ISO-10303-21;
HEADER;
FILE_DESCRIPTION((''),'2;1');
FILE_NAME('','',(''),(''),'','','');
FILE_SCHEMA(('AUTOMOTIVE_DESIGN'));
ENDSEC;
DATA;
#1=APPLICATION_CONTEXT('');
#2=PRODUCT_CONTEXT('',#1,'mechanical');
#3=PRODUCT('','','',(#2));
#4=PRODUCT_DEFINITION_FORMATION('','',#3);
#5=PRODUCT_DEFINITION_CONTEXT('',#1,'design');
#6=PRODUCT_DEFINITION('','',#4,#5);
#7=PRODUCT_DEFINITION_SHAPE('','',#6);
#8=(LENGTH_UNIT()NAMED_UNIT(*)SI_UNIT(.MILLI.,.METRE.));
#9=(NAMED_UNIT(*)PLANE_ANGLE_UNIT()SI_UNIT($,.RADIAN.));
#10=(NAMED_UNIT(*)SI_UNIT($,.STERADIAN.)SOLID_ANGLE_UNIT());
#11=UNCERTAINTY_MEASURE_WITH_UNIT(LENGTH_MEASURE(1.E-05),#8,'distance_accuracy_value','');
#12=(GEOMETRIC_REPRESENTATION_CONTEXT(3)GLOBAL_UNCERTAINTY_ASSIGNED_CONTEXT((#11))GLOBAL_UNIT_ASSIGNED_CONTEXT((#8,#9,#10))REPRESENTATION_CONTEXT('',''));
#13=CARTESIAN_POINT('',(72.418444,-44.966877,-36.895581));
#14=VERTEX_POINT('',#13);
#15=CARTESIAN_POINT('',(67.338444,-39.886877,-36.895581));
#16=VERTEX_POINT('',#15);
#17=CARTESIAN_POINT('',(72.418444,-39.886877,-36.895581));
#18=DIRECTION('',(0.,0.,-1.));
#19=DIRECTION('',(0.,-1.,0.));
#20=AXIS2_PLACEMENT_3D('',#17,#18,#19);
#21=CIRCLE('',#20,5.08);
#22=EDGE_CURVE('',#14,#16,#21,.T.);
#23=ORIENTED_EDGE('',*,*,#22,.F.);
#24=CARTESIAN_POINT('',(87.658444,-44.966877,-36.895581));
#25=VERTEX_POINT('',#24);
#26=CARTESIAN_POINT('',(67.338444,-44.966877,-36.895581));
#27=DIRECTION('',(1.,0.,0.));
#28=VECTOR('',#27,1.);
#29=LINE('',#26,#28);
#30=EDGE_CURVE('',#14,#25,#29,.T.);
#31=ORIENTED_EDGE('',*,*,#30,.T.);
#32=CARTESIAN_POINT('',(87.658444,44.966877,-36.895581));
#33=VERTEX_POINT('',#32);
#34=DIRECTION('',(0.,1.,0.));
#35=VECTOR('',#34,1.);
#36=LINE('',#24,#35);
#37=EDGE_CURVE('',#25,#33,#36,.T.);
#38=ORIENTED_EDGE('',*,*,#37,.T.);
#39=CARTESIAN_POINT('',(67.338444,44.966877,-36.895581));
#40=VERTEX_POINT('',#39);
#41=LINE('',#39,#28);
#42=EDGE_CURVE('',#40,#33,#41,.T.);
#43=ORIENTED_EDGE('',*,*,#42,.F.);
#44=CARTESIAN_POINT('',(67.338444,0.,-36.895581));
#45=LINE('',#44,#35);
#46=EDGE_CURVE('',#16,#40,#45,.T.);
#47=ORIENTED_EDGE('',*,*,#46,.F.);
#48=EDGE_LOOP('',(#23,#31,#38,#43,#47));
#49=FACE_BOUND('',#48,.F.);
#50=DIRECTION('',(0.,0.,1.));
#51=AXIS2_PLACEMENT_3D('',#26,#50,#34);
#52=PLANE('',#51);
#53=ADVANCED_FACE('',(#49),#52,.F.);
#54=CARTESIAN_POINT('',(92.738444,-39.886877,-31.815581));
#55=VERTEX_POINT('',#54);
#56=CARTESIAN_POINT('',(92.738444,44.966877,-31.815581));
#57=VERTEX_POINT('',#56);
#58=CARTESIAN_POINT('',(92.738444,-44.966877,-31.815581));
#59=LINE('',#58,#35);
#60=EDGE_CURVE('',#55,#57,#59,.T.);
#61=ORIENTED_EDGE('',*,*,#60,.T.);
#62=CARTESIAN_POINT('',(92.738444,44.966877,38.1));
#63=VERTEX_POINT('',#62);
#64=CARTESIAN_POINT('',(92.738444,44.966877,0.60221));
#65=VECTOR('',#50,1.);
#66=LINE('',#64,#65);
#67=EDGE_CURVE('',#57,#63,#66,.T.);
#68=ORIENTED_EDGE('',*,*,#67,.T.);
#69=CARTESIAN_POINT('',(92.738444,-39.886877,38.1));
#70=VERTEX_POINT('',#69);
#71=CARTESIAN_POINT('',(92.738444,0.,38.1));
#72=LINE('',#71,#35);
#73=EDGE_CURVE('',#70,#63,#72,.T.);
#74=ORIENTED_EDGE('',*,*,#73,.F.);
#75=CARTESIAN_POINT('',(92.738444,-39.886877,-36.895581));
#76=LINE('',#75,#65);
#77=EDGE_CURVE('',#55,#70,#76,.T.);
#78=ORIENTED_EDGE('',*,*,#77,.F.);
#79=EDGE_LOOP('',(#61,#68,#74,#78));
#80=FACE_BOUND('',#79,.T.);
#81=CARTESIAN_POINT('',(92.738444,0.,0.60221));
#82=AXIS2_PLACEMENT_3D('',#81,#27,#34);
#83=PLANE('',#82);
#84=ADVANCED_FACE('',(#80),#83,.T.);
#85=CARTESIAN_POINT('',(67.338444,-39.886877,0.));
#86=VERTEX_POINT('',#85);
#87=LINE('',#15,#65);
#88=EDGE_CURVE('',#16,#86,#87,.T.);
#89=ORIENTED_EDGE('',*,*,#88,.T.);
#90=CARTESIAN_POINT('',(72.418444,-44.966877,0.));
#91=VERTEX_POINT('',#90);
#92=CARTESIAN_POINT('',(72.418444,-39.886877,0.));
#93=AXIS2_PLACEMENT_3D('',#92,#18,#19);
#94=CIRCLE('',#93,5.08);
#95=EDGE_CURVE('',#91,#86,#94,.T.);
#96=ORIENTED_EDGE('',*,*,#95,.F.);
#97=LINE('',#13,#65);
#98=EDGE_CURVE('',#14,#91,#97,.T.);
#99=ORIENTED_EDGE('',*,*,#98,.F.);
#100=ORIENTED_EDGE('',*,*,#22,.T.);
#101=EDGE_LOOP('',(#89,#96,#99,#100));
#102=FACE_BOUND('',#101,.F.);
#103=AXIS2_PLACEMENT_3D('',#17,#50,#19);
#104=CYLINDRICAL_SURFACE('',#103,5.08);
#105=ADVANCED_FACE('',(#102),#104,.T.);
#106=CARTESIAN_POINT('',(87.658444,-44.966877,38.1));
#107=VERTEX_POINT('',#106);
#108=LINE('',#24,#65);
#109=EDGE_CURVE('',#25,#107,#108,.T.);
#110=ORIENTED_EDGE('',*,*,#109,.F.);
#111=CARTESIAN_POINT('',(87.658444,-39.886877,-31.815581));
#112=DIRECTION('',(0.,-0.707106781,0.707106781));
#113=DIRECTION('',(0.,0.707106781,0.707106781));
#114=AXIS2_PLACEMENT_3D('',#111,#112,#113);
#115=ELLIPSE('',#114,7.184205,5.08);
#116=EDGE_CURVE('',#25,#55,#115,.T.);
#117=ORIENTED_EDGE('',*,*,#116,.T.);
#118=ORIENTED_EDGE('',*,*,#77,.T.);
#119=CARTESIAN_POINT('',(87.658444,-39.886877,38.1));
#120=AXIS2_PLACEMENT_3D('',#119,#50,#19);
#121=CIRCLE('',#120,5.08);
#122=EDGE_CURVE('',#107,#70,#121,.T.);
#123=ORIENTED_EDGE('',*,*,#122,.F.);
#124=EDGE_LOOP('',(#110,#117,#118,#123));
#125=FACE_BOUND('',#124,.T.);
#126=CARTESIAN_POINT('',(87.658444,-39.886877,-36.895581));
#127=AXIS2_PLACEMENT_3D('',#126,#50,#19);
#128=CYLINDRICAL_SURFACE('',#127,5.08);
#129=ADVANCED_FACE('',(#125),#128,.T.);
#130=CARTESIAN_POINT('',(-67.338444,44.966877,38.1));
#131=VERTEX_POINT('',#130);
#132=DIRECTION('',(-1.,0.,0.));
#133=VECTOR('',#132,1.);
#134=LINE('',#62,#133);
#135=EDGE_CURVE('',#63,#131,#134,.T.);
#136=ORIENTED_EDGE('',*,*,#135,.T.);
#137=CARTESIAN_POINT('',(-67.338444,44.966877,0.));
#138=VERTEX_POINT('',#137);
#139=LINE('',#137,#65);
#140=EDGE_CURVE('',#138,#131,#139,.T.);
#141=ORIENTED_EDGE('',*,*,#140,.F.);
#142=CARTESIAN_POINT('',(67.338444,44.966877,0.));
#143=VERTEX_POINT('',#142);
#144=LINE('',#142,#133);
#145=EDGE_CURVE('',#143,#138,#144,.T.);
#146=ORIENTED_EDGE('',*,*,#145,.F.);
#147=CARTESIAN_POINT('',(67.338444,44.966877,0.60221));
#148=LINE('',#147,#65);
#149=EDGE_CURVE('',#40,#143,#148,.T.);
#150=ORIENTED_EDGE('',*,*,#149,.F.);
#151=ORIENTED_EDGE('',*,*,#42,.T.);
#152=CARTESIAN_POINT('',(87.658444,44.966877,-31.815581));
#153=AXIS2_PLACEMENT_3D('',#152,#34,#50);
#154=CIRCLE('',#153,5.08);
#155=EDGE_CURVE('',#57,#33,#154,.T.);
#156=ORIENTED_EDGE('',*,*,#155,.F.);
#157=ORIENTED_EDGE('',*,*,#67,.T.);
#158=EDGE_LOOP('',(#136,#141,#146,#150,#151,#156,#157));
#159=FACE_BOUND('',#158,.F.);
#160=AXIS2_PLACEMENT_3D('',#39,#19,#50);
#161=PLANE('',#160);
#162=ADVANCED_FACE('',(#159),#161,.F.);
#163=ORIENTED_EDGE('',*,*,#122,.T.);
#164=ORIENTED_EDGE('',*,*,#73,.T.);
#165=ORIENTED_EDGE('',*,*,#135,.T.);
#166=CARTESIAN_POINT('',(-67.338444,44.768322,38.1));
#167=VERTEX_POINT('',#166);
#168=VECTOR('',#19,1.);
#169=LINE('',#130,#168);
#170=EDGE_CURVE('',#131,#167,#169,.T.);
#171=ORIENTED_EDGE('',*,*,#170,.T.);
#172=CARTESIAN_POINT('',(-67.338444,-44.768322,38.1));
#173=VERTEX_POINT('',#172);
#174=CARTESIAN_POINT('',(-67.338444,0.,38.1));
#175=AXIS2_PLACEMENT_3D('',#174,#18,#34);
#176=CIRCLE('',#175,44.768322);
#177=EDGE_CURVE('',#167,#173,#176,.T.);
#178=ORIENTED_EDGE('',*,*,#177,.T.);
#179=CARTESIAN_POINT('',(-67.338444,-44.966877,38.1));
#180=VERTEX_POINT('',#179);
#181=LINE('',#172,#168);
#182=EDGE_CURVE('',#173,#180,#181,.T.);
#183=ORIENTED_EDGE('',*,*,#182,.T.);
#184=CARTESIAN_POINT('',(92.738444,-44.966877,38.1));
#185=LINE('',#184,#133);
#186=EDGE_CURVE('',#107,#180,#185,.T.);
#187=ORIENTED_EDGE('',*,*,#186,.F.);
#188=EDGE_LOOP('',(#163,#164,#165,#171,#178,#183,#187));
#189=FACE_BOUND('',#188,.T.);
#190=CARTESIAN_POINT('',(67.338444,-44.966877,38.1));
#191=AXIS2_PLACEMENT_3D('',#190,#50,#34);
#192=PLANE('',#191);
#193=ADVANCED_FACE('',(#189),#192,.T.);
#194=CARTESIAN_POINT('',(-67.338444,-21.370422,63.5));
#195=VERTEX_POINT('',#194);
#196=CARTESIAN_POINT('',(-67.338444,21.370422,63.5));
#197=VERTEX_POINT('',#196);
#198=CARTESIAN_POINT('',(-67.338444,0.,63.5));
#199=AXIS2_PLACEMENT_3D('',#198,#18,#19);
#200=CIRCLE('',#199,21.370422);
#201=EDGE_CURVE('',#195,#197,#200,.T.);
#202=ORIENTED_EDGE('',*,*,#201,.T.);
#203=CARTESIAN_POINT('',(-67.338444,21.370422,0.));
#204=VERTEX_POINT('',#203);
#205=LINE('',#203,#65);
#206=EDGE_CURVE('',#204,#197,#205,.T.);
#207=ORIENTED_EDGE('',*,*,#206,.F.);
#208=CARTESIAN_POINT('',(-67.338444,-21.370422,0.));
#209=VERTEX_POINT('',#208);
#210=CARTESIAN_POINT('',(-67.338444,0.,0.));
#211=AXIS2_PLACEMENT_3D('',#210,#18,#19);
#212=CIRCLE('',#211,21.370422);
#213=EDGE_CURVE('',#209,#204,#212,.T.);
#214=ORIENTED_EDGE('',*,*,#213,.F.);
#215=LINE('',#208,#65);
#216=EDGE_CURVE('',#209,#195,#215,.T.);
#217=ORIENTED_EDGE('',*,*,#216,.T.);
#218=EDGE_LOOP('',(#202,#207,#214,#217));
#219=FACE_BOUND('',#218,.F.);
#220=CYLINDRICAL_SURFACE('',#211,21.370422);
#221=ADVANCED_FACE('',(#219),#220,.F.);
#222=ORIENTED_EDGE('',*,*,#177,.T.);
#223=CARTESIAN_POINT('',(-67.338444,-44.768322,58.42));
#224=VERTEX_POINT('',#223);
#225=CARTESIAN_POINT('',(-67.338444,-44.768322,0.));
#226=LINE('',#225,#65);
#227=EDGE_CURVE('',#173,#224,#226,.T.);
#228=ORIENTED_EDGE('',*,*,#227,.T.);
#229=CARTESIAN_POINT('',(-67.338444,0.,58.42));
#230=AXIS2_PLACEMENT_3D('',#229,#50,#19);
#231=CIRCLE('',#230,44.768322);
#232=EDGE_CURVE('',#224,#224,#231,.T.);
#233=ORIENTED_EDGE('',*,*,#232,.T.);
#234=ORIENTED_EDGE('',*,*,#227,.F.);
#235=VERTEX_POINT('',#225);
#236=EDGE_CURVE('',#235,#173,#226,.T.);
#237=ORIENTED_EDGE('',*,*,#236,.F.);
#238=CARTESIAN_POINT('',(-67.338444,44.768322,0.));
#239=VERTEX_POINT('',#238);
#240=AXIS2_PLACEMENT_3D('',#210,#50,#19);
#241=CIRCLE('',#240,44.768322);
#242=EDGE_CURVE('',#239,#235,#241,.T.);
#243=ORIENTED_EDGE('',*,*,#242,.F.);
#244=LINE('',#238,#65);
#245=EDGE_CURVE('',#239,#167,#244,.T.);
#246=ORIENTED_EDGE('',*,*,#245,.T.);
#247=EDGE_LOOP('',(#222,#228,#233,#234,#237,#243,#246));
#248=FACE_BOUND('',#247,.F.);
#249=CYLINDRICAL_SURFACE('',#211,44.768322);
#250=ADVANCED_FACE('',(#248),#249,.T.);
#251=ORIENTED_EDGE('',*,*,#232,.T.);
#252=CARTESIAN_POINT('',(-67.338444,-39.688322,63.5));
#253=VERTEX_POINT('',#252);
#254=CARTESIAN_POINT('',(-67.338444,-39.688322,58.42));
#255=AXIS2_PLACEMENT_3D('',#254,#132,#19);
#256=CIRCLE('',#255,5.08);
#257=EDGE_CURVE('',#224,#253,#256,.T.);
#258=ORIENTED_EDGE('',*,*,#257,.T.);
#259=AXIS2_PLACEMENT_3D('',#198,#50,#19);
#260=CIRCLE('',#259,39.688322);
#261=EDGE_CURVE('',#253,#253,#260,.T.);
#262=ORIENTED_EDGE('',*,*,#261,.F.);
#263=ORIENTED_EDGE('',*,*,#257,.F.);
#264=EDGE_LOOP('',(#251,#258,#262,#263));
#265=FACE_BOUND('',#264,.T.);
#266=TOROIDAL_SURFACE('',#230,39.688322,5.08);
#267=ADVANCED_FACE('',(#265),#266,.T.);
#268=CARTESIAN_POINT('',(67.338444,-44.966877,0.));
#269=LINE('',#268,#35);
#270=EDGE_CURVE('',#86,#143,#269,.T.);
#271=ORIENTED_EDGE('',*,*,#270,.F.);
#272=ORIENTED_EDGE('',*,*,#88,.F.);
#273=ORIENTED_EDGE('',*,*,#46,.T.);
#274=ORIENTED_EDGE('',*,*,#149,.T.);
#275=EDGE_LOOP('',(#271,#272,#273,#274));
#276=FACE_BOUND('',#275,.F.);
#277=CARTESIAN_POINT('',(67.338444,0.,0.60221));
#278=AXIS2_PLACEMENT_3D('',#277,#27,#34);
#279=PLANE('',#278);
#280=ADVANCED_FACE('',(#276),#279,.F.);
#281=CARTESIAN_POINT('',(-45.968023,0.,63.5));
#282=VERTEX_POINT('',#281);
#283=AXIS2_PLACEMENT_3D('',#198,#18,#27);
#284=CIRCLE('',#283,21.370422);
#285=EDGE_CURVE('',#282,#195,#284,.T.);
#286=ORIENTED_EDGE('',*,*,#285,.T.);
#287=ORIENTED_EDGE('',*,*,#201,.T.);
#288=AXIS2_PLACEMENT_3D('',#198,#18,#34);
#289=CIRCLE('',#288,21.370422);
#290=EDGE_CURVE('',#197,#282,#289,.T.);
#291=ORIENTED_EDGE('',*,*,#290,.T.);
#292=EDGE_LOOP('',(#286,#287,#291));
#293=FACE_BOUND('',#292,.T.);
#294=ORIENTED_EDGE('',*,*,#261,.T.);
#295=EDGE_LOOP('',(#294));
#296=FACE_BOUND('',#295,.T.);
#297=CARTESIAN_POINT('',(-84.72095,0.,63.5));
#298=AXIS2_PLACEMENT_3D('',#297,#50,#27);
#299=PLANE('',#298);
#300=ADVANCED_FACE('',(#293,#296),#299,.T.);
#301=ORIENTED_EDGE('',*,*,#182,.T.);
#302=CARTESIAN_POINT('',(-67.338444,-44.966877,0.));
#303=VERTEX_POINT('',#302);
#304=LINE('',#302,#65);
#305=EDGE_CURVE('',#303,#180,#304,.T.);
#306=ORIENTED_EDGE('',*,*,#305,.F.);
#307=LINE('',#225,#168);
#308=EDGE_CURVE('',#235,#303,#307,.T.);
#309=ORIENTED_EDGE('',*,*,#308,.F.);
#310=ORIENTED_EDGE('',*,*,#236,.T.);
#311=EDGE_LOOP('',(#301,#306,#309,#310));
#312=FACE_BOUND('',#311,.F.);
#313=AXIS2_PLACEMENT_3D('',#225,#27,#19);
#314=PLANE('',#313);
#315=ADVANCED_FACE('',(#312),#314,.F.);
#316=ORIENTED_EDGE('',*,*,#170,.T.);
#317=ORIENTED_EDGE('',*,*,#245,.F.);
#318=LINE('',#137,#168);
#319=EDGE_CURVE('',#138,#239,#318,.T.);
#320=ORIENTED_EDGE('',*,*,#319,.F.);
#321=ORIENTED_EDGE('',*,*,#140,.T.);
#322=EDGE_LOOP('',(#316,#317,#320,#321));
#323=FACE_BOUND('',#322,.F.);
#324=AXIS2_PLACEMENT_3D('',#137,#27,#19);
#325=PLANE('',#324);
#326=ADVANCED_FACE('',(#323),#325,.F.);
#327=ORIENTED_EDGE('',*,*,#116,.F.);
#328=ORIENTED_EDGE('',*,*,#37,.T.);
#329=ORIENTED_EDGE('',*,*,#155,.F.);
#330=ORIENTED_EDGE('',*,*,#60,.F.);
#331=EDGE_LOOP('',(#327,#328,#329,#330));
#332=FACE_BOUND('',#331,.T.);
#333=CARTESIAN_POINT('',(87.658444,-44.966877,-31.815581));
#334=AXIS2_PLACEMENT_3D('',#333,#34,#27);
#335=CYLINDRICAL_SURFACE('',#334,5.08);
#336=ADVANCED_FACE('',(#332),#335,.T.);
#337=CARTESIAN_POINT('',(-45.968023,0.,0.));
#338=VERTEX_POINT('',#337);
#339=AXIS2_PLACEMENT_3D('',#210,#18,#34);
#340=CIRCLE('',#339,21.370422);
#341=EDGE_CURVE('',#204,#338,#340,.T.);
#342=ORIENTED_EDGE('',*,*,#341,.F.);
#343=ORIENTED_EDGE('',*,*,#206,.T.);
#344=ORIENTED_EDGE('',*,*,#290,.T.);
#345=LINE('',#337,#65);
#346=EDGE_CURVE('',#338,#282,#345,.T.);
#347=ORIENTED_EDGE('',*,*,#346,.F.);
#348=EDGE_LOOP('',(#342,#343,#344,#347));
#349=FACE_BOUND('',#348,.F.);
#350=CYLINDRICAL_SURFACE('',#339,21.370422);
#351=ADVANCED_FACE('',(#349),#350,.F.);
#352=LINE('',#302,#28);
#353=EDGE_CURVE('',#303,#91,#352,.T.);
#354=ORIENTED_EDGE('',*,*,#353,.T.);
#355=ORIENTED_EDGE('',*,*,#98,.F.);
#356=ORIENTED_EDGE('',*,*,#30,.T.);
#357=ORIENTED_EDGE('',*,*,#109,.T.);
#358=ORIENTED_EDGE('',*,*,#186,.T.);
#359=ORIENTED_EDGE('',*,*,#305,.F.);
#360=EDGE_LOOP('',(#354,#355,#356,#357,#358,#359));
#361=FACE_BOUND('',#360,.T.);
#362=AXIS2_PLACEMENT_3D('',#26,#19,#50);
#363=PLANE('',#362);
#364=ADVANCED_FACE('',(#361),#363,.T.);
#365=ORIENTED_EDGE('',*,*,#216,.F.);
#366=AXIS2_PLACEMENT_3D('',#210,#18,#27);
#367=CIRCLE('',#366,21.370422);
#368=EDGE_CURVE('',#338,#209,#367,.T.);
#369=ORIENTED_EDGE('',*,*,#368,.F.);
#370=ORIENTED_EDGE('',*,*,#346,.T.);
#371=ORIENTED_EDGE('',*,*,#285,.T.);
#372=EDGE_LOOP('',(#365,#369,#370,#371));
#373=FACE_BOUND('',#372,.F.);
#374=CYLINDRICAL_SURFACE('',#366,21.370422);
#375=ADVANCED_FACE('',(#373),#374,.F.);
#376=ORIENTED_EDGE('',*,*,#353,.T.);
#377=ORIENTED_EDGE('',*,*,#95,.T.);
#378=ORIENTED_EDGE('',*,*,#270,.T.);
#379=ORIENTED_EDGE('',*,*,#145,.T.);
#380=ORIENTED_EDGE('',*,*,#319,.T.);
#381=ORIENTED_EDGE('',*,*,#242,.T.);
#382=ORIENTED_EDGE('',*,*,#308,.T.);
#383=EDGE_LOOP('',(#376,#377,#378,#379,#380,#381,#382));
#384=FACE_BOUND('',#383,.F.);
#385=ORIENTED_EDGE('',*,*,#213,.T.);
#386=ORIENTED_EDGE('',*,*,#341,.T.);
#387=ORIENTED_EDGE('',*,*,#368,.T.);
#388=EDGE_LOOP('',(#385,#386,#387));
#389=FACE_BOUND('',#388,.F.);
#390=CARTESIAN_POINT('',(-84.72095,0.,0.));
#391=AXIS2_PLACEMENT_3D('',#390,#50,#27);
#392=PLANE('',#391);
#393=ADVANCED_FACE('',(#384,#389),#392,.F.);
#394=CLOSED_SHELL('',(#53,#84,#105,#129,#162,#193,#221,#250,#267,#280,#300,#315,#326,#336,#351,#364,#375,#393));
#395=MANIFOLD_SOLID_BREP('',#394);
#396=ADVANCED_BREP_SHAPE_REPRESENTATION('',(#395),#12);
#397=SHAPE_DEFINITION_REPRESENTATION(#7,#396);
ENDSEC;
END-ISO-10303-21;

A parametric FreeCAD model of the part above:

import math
import FreeCAD as App
import Part
import Sketcher
from FreeCAD import Vector
Q = App.Units.Quantity


def edges_at(feature, points):
    """Names of the edges that pass closest to the given points."""
    edges = feature.Shape.Edges
    near = lambda p: min(range(len(edges)), key=lambda i: edges[i].distToShape(Part.Vertex(*p))[0])
    return sorted({f"Edge{near(p) + 1}" for p in points})

doc = App.newDocument("Part")
body = doc.addObject("PartDesign::Body", "Body")

sketch1 = doc.addObject("Sketcher::SketchObject", "Sketch")
body.addObject(sketch1)
sketch1.AttachmentSupport = (doc.XY_Plane, [""])
sketch1.MapMode = "FlatFace"
sketch1.addGeometry(Part.LineSegment(Vector(67.338444, 44.966877, 0), Vector(-67.338444, 44.966877, 0)), False)
sketch1.addGeometry(Part.LineSegment(Vector(-67.338444, 44.966877, 0), Vector(-67.338444, 44.768322, 0)), False)
sketch1.addGeometry(Part.ArcOfCircle(Part.Circle(Vector(-67.338444, 0, 0), Vector(0, 0, 1), 44.768322), math.radians(-90), math.radians(90)), False)
sketch1.addGeometry(Part.LineSegment(Vector(-67.338444, -44.768322, 0), Vector(-67.338444, -44.966877, 0)), False)
sketch1.addGeometry(Part.LineSegment(Vector(-67.338444, -44.966877, 0), Vector(67.338444, -44.966877, 0)), False)
sketch1.addGeometry(Part.LineSegment(Vector(67.338444, -44.966877, 0), Vector(67.338444, 44.966877, 0)), False)
sketch1.addConstraint(Sketcher.Constraint("Coincident", 0, 2, 1, 1))
sketch1.addConstraint(Sketcher.Constraint("Coincident", 1, 2, 2, 2))
sketch1.addConstraint(Sketcher.Constraint("Coincident", 2, 1, 3, 1))
sketch1.addConstraint(Sketcher.Constraint("Coincident", 3, 2, 4, 1))
sketch1.addConstraint(Sketcher.Constraint("Coincident", 4, 2, 5, 1))
sketch1.addConstraint(Sketcher.Constraint("Coincident", 5, 2, 0, 1))
sketch1.addConstraint(Sketcher.Constraint("Horizontal", 0))
sketch1.addConstraint(Sketcher.Constraint("Vertical", 1))
sketch1.addConstraint(Sketcher.Constraint("Vertical", 3))
sketch1.addConstraint(Sketcher.Constraint("Horizontal", 4))
sketch1.addConstraint(Sketcher.Constraint("Vertical", 5))
sketch1.addConstraint(Sketcher.Constraint("Symmetric", 0, 2, 4, 2, -1, 1))
sketch1.addConstraint(Sketcher.Constraint("Symmetric", 1, 2, 2, 1, -1))
sketch1.addConstraint(Sketcher.Constraint("Vertical", 2, 3, 0, 2))
sketch1.addConstraint(Sketcher.Constraint("Radius", 2, Q("44.768322 mm")))
sketch1.addConstraint(Sketcher.Constraint("DistanceX", 0, 2, 0, 1, Q("134.676889 mm")))
sketch1.addConstraint(Sketcher.Constraint("DistanceY", 2, 1, 0, 2, Q("89.735199 mm")))
pad1 = doc.addObject("PartDesign::Pad", "Pad")
body.addObject(pad1)
pad1.Profile = sketch1
pad1.Length = Q("1.5 in")

sketch2 = doc.addObject("Sketcher::SketchObject", "Sketch001")
body.addObject(sketch2)
sketch2.AttachmentSupport = (doc.XY_Plane, [""])
sketch2.MapMode = "FlatFace"
sketch2.addGeometry(Part.Circle(Vector(-67.338444, 0, 0), Vector(0, 0, 1), 44.768322), False)
sketch2.addGeometry(Part.ArcOfCircle(Part.Circle(Vector(-67.338444, 0, 0), Vector(0, 0, 1), 21.370422), math.radians(90), math.radians(270)), False)
sketch2.addGeometry(Part.ArcOfCircle(Part.Circle(Vector(-67.338444, 0, 0), Vector(0, 0, 1), 21.370422), math.radians(0), math.radians(90)), False)
sketch2.addGeometry(Part.ArcOfCircle(Part.Circle(Vector(-67.338444, 0, 0), Vector(0, 0, 1), 21.370422), math.radians(-90), math.radians(0)), False)
sketch2.addConstraint(Sketcher.Constraint("Tangent", 1, 1, 2, 2))
sketch2.addConstraint(Sketcher.Constraint("Tangent", 2, 1, 3, 2))
sketch2.addConstraint(Sketcher.Constraint("Tangent", 3, 1, 1, 2))
sketch2.addConstraint(Sketcher.Constraint("Coincident", 1, 3, 0, 3))
sketch2.addConstraint(Sketcher.Constraint("Symmetric", 1, 1, 3, 1, -1))
sketch2.addConstraint(Sketcher.Constraint("PointOnObject", 2, 1, -1))
sketch2.addConstraint(Sketcher.Constraint("Vertical", 3, 3, 1, 1))
sketch2.addConstraint(Sketcher.Constraint("Radius", 1, Q("21.370422 mm")))
sketch2.addConstraint(Sketcher.Constraint("Diameter", 0, Q("89.536644 mm")))
sketch2.addConstraint(Sketcher.Constraint("DistanceX", 0, 3, -1, 1, Q("67.338444 mm")))
pad2 = doc.addObject("PartDesign::Pad", "Pad001")
body.addObject(pad2)
pad2.Profile = sketch2
pad2.Length = Q("2.5 in")
doc.recompute()

fillet = doc.addObject("PartDesign::Fillet", "Fillet")
body.addObject(fillet)
fillet.Base = (pad2, edges_at(pad2, [(-67.338, 44.768, 63.5)]))
fillet.Radius = Q("0.2 in")

sketch3 = doc.addObject("Sketcher::SketchObject", "Sketch002")
body.addObject(sketch3)
sketch3.AttachmentSupport = (doc.YZ_Plane, [""])
sketch3.MapMode = "FlatFace"
sketch3.AttachmentOffset = App.Placement(Vector(0, 0, 67.338444), App.Rotation())
sketch3.addGeometry(Part.LineSegment(Vector(-44.966877, 38.1, 0), Vector(-44.966877, -36.895581, 0)), False)
sketch3.addGeometry(Part.LineSegment(Vector(-44.966877, -36.895581, 0), Vector(44.966877, -36.895581, 0)), False)
sketch3.addGeometry(Part.LineSegment(Vector(44.966877, -36.895581, 0), Vector(44.966877, 38.1, 0)), False)
sketch3.addGeometry(Part.LineSegment(Vector(44.966877, 38.1, 0), Vector(-44.966877, 38.1, 0)), False)
sketch3.addConstraint(Sketcher.Constraint("Coincident", 0, 2, 1, 1))
sketch3.addConstraint(Sketcher.Constraint("Coincident", 1, 2, 2, 1))
sketch3.addConstraint(Sketcher.Constraint("Coincident", 2, 2, 3, 1))
sketch3.addConstraint(Sketcher.Constraint("Coincident", 3, 2, 0, 1))
sketch3.addConstraint(Sketcher.Constraint("Vertical", 0))
sketch3.addConstraint(Sketcher.Constraint("Horizontal", 1))
sketch3.addConstraint(Sketcher.Constraint("Vertical", 2))
sketch3.addConstraint(Sketcher.Constraint("Horizontal", 3))
sketch3.addConstraint(Sketcher.Constraint("DistanceY", -1, 1, 2, 2, Q("1.5 in")))
sketch3.addConstraint(Sketcher.Constraint("DistanceY", 0, 2, 0, 1, Q("74.995581 mm")))
sketch3.addConstraint(Sketcher.Constraint("DistanceX", 1, 1, 1, 2, Q("89.933753 mm")))
sketch3.addConstraint(Sketcher.Constraint("DistanceX", 0, 2, -1, 1, Q("44.966877 mm")))
pad3 = doc.addObject("PartDesign::Pad", "Pad002")
body.addObject(pad3)
pad3.Profile = sketch3
pad3.Length = Q("1 in")
doc.recompute()

fillet2 = doc.addObject("PartDesign::Fillet", "Fillet001")
body.addObject(fillet2)
fillet2.Base = (pad3, edges_at(pad3, [(92.738, -44.967, 0.602), (67.338, -44.967, -18.448), (92.738, 0, -36.896)]))
fillet2.Radius = Q("0.2 in")

doc.recompute()
